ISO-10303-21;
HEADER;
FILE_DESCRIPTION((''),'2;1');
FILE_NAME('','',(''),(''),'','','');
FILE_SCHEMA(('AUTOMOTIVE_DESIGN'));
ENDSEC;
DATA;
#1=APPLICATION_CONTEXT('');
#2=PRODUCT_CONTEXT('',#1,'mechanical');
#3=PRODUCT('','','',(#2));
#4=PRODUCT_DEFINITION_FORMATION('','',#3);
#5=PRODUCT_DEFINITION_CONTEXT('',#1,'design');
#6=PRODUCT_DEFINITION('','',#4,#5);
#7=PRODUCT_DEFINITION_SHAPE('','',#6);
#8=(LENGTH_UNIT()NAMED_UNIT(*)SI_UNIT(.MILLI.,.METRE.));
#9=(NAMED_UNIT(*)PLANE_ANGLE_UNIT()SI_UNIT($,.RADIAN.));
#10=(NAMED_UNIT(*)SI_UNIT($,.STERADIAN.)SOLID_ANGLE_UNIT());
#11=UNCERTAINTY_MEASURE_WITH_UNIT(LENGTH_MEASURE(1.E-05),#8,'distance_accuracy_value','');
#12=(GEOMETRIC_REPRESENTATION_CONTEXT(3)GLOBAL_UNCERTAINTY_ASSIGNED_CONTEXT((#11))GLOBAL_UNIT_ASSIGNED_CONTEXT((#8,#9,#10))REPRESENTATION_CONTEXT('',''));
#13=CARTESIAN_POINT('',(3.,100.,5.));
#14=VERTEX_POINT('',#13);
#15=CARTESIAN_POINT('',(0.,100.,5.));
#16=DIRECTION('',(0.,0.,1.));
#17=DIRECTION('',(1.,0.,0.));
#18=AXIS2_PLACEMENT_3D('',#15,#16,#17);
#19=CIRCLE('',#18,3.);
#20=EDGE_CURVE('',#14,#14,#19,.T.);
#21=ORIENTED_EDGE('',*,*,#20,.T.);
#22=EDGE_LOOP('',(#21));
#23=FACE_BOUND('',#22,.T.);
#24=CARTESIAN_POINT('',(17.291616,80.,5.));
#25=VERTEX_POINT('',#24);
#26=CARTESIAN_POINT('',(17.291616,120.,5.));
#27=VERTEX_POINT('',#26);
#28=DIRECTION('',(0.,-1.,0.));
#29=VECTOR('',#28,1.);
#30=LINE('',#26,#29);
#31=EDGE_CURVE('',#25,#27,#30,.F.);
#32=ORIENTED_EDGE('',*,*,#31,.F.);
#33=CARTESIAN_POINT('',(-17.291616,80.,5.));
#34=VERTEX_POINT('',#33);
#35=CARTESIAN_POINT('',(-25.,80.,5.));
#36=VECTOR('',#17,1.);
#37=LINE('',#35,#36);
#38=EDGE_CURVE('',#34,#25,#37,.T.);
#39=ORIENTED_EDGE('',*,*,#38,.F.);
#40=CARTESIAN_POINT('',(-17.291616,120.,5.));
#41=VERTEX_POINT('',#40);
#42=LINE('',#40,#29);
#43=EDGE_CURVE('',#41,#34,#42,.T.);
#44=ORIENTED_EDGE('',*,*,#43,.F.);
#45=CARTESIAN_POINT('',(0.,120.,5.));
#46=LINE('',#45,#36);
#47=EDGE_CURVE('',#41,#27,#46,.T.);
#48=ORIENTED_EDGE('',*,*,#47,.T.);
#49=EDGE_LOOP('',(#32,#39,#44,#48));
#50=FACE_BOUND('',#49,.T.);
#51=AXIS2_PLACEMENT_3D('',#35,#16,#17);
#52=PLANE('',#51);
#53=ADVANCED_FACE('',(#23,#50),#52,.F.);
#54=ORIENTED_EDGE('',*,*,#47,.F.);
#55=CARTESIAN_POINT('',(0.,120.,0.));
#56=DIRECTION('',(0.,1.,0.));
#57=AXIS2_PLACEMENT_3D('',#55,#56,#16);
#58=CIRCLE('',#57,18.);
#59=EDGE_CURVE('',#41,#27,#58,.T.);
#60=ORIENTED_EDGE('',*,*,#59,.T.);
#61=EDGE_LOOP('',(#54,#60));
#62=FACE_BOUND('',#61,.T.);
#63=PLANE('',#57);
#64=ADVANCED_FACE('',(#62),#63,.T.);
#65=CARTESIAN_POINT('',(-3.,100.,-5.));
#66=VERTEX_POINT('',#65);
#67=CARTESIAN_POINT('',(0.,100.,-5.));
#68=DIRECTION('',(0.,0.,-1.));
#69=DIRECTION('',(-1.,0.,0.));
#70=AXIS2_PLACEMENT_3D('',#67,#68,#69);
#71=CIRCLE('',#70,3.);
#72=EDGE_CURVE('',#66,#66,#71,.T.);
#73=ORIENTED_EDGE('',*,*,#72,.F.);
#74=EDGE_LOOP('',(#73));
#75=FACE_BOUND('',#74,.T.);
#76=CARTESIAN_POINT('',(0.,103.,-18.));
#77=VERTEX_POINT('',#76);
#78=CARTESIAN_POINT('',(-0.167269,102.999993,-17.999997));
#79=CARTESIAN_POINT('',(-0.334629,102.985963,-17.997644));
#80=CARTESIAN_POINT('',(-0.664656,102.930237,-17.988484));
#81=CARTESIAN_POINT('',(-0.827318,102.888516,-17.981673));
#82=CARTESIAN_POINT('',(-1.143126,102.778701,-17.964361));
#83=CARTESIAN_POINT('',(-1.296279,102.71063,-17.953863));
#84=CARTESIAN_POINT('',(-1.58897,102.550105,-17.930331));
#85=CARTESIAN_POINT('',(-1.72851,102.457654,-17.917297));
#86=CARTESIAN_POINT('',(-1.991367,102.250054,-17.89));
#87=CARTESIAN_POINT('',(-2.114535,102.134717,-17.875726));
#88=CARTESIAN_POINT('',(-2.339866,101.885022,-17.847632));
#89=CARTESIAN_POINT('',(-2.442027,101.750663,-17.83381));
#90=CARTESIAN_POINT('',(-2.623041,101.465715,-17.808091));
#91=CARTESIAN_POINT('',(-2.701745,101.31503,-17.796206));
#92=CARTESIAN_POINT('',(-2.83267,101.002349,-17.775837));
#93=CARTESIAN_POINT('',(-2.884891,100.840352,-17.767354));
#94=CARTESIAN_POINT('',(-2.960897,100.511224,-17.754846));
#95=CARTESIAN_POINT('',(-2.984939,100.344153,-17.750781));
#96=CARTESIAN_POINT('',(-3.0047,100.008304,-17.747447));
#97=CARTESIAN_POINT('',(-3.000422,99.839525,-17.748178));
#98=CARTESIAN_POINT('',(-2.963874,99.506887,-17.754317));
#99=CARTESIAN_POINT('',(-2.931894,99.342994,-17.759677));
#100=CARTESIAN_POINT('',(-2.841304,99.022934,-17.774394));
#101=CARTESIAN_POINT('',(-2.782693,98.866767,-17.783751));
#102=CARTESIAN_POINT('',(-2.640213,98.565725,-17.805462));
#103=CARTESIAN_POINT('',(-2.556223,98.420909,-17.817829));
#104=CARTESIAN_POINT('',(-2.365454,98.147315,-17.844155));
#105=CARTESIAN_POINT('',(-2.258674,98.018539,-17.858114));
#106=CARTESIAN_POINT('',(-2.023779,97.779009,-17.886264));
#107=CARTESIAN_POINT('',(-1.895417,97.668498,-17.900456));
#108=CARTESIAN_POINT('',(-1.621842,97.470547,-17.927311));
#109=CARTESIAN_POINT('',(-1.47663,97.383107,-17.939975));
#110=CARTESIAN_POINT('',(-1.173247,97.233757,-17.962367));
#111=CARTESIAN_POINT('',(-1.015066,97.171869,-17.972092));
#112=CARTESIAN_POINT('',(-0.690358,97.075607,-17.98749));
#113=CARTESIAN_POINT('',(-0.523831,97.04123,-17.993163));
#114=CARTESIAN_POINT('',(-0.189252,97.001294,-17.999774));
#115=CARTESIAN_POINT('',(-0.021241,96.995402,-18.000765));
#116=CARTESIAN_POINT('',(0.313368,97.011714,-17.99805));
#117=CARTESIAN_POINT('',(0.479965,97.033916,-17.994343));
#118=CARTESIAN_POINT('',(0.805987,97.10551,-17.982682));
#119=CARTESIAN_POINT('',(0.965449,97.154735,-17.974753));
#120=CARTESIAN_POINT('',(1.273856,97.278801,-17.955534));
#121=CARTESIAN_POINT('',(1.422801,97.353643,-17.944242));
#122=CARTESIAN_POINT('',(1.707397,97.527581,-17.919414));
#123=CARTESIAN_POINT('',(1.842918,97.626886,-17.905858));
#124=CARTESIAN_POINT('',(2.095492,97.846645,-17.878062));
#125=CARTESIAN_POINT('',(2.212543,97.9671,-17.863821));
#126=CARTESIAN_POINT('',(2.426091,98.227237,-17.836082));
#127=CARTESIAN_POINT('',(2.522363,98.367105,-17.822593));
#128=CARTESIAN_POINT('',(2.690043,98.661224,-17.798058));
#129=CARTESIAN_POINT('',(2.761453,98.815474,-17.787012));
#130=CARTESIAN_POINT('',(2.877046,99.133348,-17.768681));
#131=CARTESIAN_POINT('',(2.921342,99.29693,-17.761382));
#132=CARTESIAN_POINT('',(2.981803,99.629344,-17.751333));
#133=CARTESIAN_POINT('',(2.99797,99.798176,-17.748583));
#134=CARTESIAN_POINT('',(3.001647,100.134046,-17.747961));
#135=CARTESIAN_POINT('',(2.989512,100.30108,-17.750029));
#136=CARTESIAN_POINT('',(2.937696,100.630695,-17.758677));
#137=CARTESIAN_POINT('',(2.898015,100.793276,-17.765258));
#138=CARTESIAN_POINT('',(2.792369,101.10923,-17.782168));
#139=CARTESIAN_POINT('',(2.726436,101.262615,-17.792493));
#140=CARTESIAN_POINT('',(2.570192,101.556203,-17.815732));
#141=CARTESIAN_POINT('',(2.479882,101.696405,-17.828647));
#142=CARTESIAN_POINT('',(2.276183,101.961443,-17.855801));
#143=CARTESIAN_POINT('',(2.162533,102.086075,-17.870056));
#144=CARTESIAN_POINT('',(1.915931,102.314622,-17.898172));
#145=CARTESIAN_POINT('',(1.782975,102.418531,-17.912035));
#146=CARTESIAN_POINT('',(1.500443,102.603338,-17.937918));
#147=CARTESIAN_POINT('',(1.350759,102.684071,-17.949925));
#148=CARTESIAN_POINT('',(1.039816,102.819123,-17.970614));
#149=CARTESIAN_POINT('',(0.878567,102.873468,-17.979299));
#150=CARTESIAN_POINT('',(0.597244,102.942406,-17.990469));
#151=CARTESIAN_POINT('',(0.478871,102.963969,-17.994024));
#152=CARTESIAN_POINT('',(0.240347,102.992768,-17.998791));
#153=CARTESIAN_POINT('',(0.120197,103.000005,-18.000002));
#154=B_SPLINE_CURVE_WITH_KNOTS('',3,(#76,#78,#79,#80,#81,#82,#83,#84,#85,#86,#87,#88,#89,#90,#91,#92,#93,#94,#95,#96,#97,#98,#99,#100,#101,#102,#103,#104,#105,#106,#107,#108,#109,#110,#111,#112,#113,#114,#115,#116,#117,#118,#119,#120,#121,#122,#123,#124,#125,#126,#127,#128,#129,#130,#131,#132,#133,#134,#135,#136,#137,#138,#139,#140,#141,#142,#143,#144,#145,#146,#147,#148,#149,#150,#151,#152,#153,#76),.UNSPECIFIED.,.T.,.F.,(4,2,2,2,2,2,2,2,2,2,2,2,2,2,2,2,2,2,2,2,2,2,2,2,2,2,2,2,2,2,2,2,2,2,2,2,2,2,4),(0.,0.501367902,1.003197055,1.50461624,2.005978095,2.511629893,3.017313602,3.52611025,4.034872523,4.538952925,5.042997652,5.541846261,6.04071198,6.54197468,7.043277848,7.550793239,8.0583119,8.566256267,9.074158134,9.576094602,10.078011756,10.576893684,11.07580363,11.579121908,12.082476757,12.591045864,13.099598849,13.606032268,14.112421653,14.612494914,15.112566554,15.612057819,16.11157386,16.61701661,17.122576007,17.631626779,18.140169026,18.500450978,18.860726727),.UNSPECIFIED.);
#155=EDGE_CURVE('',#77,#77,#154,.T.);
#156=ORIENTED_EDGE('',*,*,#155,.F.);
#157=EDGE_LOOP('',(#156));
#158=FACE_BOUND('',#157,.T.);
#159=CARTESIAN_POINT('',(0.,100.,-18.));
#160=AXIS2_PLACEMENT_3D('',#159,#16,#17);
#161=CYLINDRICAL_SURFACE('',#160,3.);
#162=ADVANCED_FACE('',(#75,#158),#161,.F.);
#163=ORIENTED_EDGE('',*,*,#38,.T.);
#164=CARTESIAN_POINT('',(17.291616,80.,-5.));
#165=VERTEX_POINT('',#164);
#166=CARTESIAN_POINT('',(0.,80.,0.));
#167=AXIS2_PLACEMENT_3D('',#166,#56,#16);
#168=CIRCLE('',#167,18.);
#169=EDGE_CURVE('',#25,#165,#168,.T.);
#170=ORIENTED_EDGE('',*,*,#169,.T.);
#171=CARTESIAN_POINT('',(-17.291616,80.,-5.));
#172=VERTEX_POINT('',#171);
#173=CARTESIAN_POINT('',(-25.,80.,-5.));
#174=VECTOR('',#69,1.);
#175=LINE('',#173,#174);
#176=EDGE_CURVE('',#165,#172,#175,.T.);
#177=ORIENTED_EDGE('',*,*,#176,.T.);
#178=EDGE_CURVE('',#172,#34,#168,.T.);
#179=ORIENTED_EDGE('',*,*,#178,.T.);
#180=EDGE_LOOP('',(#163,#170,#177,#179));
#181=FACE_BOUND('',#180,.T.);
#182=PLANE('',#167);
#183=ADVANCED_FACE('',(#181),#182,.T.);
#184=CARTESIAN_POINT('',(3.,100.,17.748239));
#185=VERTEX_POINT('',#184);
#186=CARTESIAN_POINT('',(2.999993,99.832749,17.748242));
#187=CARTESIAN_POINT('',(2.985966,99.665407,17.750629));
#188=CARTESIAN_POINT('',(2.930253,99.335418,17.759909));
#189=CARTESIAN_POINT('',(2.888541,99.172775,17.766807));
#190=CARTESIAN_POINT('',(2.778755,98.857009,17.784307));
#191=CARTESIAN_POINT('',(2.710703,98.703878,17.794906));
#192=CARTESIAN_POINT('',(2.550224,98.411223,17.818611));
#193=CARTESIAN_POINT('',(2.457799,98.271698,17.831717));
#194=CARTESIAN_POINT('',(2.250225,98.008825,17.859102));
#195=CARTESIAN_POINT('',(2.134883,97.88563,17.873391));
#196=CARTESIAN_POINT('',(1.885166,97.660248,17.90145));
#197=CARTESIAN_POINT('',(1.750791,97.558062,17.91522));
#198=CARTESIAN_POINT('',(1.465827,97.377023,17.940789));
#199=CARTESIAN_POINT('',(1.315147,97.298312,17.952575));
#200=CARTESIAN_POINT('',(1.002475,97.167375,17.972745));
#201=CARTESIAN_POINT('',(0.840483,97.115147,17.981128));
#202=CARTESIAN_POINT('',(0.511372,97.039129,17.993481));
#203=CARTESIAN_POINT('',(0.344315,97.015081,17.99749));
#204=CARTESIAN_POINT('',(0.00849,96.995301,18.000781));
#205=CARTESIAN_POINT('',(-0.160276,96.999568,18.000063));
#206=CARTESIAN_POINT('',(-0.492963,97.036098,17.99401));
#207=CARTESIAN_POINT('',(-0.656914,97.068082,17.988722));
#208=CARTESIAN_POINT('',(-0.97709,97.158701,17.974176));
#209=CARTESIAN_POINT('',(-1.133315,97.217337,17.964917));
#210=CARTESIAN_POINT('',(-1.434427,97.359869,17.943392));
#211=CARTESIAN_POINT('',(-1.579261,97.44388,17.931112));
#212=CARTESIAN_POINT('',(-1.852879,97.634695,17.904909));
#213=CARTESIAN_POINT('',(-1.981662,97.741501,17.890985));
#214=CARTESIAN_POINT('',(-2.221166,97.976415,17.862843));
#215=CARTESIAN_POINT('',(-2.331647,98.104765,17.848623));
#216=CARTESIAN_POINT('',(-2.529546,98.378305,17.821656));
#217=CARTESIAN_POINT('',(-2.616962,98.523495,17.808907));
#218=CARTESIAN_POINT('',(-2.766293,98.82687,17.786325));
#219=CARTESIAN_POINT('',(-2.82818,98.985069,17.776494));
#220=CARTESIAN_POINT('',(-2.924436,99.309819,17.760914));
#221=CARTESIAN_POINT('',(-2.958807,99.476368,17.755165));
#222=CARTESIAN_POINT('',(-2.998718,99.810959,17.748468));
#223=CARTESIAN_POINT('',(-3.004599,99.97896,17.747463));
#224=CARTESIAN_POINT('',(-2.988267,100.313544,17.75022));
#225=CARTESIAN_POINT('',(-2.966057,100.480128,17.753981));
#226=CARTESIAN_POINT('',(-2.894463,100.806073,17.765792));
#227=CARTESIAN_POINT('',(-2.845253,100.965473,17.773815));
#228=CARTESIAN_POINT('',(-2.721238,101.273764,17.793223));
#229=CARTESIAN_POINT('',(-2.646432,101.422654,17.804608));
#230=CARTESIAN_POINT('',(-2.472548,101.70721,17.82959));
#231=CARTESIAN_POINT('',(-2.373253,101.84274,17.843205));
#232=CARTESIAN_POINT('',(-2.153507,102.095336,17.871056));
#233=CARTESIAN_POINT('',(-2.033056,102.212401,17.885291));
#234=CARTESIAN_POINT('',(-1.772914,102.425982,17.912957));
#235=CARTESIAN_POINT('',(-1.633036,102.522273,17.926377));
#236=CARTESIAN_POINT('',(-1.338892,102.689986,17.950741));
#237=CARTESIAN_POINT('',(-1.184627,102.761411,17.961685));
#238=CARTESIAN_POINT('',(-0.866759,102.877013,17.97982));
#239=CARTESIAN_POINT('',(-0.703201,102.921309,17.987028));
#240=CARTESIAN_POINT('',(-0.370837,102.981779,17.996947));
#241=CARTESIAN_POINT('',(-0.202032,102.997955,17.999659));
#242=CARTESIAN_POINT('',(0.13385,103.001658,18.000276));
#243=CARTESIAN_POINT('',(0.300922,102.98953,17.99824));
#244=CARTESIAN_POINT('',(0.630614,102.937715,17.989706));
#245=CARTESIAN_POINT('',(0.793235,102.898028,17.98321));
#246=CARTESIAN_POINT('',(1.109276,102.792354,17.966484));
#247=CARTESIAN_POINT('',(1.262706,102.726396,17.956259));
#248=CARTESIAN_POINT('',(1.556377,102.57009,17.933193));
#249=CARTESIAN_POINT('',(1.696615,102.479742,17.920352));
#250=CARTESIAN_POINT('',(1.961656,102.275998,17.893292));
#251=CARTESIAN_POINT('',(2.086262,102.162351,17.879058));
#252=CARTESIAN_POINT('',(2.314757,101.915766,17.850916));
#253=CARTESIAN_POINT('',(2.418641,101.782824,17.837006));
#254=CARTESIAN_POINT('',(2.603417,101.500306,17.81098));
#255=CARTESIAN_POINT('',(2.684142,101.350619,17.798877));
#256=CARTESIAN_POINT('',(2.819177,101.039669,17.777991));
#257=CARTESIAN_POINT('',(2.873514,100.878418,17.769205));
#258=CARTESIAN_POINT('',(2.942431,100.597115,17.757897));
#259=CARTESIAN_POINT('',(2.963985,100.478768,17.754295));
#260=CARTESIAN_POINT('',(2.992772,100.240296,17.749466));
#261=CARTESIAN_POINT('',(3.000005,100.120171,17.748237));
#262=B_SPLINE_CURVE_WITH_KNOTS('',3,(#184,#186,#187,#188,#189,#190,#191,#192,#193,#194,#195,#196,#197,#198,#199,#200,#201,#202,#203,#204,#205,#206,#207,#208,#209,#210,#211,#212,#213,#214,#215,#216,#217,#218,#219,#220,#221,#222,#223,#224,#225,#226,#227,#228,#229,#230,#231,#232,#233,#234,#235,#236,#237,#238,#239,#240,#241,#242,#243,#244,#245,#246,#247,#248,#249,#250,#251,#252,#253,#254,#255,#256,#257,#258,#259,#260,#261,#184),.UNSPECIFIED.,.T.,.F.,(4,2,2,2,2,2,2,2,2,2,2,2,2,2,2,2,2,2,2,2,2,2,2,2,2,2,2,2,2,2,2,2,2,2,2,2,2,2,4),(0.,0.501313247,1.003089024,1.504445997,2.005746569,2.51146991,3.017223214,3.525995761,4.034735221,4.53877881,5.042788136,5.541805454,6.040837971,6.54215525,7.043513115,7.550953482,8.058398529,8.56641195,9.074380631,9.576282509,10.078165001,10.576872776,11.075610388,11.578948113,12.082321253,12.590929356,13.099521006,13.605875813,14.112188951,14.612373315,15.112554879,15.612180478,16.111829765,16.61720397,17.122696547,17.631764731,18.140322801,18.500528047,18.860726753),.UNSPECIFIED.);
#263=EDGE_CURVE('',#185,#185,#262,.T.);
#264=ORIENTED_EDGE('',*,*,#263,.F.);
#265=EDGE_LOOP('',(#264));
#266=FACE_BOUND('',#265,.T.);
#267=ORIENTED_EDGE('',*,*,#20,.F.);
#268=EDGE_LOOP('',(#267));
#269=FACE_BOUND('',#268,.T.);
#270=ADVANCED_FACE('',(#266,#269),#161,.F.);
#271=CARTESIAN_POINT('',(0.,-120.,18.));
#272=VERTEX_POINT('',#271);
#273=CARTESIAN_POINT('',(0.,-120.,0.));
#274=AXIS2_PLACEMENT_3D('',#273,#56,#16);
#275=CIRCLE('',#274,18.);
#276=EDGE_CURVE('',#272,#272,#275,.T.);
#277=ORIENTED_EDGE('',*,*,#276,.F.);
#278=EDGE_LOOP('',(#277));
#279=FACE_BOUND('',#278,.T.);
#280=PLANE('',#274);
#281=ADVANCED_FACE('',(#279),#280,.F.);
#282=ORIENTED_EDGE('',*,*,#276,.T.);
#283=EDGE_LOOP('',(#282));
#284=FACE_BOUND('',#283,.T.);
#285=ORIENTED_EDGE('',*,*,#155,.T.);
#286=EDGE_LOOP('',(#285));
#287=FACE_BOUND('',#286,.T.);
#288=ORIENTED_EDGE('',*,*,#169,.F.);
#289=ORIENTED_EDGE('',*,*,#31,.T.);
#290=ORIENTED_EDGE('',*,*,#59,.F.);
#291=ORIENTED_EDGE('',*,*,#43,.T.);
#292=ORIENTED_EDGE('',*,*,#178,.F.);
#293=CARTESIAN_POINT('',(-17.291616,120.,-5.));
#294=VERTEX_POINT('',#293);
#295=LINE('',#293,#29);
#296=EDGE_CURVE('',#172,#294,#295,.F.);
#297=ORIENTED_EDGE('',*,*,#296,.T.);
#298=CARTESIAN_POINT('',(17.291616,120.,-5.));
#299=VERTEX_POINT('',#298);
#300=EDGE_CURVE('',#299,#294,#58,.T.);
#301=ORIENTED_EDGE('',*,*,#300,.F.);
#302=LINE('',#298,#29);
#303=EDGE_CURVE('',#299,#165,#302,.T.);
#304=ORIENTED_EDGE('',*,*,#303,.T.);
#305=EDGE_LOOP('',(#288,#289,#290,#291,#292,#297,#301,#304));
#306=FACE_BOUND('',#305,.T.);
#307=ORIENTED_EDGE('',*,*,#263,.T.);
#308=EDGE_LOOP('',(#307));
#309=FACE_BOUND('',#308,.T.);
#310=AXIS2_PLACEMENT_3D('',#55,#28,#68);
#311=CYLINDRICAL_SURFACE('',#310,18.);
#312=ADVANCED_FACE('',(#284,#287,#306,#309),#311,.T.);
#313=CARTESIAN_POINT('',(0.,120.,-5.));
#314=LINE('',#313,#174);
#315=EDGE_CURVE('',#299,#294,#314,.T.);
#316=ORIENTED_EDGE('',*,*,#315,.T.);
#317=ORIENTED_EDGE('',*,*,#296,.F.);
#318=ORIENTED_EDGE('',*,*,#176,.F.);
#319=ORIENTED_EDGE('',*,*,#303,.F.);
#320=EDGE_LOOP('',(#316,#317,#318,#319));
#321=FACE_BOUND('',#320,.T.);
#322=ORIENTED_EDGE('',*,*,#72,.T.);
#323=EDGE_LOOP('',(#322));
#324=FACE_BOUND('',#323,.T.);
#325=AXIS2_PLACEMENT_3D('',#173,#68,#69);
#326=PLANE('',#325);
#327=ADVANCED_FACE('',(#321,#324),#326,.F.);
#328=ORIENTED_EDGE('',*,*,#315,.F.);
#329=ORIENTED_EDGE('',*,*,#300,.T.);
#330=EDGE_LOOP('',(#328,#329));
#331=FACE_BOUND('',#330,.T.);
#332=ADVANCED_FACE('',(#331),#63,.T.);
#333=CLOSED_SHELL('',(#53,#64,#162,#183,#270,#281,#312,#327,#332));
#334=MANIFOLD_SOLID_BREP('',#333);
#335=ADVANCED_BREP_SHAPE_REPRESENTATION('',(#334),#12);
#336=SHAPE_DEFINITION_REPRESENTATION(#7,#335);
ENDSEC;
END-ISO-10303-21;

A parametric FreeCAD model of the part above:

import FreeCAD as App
import Part
import Sketcher


def add_polygon(sketch, points):
    """Adds a closed chain of lines whose ends are joined by coincident constraints."""
    first, n = sketch.GeometryCount, len(points)
    for a, b in zip(points, points[1:] + points[:1]):
        sketch.addGeometry(Part.LineSegment(App.Vector(*a, 0), App.Vector(*b, 0)), False)
    for i in range(n):
        sketch.addConstraint(Sketcher.Constraint("Coincident", first + i, 2, first + (i + 1) % n, 1))

doc = App.newDocument("Part")
params = doc.addObject("Spreadsheet::Sheet", "Params")
for row, (alias, value) in enumerate([
    ("sketch1_diameter", "36 mm"),
    ("pad1_length", "240 mm"),
    ("sketch2_width", "50 mm"),
    ("sketch2_height", "10 mm"),
    ("pocket1_length", "40 mm"),
    ("sketch3_diameter", "6 mm"),
], start=1):
    params.set(f"A{row}", alias)
    params.set(f"B{row}", "=" + value)
    params.setAlias(f"B{row}", alias)

body = doc.addObject("PartDesign::Body", "Body")

# Sketch on XZ plane
sketch1 = body.newObject("Sketcher::SketchObject", "Sketch")
sketch1.AttachmentSupport = (doc.getObject("XZ_Plane"), [""])
sketch1.MapMode = "FlatFace"
sketch1.addGeometry(Part.Circle(App.Vector(0, 0, 0), App.Vector(0, 0, 1), 18), False)
sketch1.addConstraint(Sketcher.Constraint("Coincident", 0, 3, -1, 1))
sketch1.addConstraint(Sketcher.Constraint("Diameter", 0, 36.0))
sketch1.setExpression("Constraints[1]", "Params.sketch1_diameter")
pad1 = body.newObject("PartDesign::Pad", "Pad")
pad1.Profile = sketch1
pad1.setExpression("Length", "Params.pad1_length")
pad1.Midplane = True

# Sketch on XZ plane
sketch2 = body.newObject("Sketcher::SketchObject", "Sketch001")
sketch2.AttachmentSupport = (doc.getObject("XZ_Plane"), [""])
sketch2.MapMode = "FlatFace"
sketch2.AttachmentOffset = App.Placement(App.Vector(0, 0, -120), App.Rotation())
add_polygon(sketch2, [(-25, -5), (-25, 5), (25, 5), (25, -5)])  # lines 0-3
sketch2.addConstraint(Sketcher.Constraint("Vertical", 0))
sketch2.addConstraint(Sketcher.Constraint("Horizontal", 1))
sketch2.addConstraint(Sketcher.Constraint("Vertical", 2))
sketch2.addConstraint(Sketcher.Constraint("Horizontal", 3))
sketch2.addConstraint(Sketcher.Constraint("Symmetric", 0, 2, 2, 2, -1, 1))
sketch2.addConstraint(Sketcher.Constraint("DistanceX", 1, 1, 1, 2, 50.0))
sketch2.addConstraint(Sketcher.Constraint("DistanceY", 0, 1, 0, 2, 10.0))
sketch2.setExpression("Constraints[9]", "Params.sketch2_width")
sketch2.setExpression("Constraints[10]", "Params.sketch2_height")
pocket1 = body.newObject("PartDesign::Pocket", "Pocket")
pocket1.Profile = sketch2
pocket1.setExpression("Length", "Params.pocket1_length")
pocket1.Reversed = True

# Sketch on XY plane
sketch3 = body.newObject("Sketcher::SketchObject", "Sketch002")
sketch3.AttachmentSupport = (doc.getObject("XY_Plane"), [""])
sketch3.MapMode = "FlatFace"
sketch3.addGeometry(Part.Circle(App.Vector(0, 100, 0), App.Vector(0, 0, 1), 3), False)
sketch3.addConstraint(Sketcher.Constraint("PointOnObject", 0, 3, -2))
sketch3.addConstraint(Sketcher.Constraint("Diameter", 0, 6.0))
sketch3.addConstraint(Sketcher.Constraint("DistanceY", -1, 1, 0, 3, 100.0))
sketch3.setExpression("Constraints[1]", "Params.sketch3_diameter")
pocket2 = body.newObject("PartDesign::Pocket", "Pocket001")
pocket2.Profile = sketch3
pocket2.Type = "ThroughAll"
pocket2.Midplane = True

doc.recompute()
